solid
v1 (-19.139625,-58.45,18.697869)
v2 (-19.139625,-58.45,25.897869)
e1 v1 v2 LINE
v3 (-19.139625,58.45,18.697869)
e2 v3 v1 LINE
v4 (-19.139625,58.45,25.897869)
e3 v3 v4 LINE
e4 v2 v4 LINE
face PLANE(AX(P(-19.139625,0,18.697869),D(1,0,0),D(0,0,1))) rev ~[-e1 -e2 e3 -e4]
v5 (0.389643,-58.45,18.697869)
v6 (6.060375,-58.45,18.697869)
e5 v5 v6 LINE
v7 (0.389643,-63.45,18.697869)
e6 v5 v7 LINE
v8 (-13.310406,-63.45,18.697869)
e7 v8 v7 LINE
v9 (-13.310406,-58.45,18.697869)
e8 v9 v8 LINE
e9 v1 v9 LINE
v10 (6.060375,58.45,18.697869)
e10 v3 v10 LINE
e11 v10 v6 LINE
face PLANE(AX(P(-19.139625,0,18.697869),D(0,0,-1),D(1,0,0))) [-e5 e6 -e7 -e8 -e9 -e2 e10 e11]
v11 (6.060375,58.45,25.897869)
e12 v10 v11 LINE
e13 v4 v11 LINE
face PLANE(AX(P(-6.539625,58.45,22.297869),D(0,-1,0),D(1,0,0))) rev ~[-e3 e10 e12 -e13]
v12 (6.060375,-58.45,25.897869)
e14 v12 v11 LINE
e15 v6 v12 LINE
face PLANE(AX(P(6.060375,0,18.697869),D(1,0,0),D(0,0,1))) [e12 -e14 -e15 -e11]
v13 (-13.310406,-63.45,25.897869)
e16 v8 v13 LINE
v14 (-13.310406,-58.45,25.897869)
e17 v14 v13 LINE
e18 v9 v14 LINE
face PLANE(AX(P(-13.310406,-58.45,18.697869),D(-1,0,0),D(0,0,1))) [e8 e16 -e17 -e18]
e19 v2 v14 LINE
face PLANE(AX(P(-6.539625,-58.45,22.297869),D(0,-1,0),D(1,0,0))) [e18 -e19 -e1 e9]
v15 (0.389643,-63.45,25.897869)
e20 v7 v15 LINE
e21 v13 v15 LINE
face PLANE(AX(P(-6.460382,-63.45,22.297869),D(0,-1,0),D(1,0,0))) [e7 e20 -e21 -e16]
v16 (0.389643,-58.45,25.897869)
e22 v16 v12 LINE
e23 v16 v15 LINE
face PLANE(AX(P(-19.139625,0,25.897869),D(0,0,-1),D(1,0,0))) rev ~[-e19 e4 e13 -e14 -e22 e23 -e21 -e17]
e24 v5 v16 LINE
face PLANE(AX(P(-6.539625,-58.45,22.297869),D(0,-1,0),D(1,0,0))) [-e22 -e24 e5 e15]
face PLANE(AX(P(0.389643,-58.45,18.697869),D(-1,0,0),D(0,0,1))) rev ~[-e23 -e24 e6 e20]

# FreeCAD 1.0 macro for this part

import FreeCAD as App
import Part
import Sketcher

V = App.Vector


def add_polygon(sketch, points):
    """Adds a closed chain of lines whose ends are joined by coincident constraints."""
    first, n = sketch.GeometryCount, len(points)
    for a, b in zip(points, points[1:] + points[:1]):
        sketch.addGeometry(Part.LineSegment(App.Vector(*a, 0), App.Vector(*b, 0)), False)
    for i in range(n):
        sketch.addConstraint(Sketcher.Constraint("Coincident", first + i, 2, first + (i + 1) % n, 1))

doc = App.newDocument("Part")
body = doc.addObject("PartDesign::Body", "Body")

# Sketch on XZ plane
sketch1 = body.newObject("Sketcher::SketchObject", "Sketch")
sketch1.AttachmentSupport = (doc.getObject("XZ_Plane"), [""])
sketch1.MapMode = "FlatFace"
add_polygon(sketch1, [(-19, 26), (-19, 19), (6, 19), (6, 26)])  # lines 0-3
sketch1.addConstraint(Sketcher.Constraint("Vertical", 0))
sketch1.addConstraint(Sketcher.Constraint("Horizontal", 1))
sketch1.addConstraint(Sketcher.Constraint("Vertical", 2))
sketch1.addConstraint(Sketcher.Constraint("Horizontal", 3))
sketch1.addConstraint(Sketcher.Constraint("DistanceX", 1, 1, 1, 2, 25.2))
sketch1.addConstraint(Sketcher.Constraint("DistanceY", 0, 2, 0, 1, 7.2))
sketch1.addConstraint(Sketcher.Constraint("DistanceY", -1, 1, 0, 2, 18.697869))
sketch1.addConstraint(Sketcher.Constraint("DistanceX", 0, 2, -1, 1, 19.139625))
pad1 = body.newObject("PartDesign::Pad", "Pad")
pad1.Profile = sketch1
pad1.Length = 116.9
pad1.Midplane = True

# Sketch on XZ plane
sketch2 = body.newObject("Sketcher::SketchObject", "Sketch001")
sketch2.AttachmentSupport = (doc.getObject("XZ_Plane"), [""])
sketch2.MapMode = "FlatFace"
sketch2.AttachmentOffset = App.Placement(V(0, 0, 58.45), App.Rotation())
add_polygon(sketch2, [(-13, 26), (-13, 19), (0, 19), (0, 26)])  # lines 0-3
sketch2.addConstraint(Sketcher.Constraint("Vertical", 0))
sketch2.addConstraint(Sketcher.Constraint("Horizontal", 1))
sketch2.addConstraint(Sketcher.Constraint("Vertical", 2))
sketch2.addConstraint(Sketcher.Constraint("Horizontal", 3))
sketch2.addConstraint(Sketcher.Constraint("DistanceY", 0, 2, 0, 1, 7.2))
sketch2.addConstraint(Sketcher.Constraint("DistanceX", 1, 1, 1, 2, 13.700049))
sketch2.addConstraint(Sketcher.Constraint("DistanceY", -1, 1, 0, 2, 18.697869))
sketch2.addConstraint(Sketcher.Constraint("DistanceX", 0, 2, -1, 1, 13.310406))
pad2 = body.newObject("PartDesign::Pad", "Pad001")
pad2.Profile = sketch2
pad2.Length = 5

doc.recompute()
